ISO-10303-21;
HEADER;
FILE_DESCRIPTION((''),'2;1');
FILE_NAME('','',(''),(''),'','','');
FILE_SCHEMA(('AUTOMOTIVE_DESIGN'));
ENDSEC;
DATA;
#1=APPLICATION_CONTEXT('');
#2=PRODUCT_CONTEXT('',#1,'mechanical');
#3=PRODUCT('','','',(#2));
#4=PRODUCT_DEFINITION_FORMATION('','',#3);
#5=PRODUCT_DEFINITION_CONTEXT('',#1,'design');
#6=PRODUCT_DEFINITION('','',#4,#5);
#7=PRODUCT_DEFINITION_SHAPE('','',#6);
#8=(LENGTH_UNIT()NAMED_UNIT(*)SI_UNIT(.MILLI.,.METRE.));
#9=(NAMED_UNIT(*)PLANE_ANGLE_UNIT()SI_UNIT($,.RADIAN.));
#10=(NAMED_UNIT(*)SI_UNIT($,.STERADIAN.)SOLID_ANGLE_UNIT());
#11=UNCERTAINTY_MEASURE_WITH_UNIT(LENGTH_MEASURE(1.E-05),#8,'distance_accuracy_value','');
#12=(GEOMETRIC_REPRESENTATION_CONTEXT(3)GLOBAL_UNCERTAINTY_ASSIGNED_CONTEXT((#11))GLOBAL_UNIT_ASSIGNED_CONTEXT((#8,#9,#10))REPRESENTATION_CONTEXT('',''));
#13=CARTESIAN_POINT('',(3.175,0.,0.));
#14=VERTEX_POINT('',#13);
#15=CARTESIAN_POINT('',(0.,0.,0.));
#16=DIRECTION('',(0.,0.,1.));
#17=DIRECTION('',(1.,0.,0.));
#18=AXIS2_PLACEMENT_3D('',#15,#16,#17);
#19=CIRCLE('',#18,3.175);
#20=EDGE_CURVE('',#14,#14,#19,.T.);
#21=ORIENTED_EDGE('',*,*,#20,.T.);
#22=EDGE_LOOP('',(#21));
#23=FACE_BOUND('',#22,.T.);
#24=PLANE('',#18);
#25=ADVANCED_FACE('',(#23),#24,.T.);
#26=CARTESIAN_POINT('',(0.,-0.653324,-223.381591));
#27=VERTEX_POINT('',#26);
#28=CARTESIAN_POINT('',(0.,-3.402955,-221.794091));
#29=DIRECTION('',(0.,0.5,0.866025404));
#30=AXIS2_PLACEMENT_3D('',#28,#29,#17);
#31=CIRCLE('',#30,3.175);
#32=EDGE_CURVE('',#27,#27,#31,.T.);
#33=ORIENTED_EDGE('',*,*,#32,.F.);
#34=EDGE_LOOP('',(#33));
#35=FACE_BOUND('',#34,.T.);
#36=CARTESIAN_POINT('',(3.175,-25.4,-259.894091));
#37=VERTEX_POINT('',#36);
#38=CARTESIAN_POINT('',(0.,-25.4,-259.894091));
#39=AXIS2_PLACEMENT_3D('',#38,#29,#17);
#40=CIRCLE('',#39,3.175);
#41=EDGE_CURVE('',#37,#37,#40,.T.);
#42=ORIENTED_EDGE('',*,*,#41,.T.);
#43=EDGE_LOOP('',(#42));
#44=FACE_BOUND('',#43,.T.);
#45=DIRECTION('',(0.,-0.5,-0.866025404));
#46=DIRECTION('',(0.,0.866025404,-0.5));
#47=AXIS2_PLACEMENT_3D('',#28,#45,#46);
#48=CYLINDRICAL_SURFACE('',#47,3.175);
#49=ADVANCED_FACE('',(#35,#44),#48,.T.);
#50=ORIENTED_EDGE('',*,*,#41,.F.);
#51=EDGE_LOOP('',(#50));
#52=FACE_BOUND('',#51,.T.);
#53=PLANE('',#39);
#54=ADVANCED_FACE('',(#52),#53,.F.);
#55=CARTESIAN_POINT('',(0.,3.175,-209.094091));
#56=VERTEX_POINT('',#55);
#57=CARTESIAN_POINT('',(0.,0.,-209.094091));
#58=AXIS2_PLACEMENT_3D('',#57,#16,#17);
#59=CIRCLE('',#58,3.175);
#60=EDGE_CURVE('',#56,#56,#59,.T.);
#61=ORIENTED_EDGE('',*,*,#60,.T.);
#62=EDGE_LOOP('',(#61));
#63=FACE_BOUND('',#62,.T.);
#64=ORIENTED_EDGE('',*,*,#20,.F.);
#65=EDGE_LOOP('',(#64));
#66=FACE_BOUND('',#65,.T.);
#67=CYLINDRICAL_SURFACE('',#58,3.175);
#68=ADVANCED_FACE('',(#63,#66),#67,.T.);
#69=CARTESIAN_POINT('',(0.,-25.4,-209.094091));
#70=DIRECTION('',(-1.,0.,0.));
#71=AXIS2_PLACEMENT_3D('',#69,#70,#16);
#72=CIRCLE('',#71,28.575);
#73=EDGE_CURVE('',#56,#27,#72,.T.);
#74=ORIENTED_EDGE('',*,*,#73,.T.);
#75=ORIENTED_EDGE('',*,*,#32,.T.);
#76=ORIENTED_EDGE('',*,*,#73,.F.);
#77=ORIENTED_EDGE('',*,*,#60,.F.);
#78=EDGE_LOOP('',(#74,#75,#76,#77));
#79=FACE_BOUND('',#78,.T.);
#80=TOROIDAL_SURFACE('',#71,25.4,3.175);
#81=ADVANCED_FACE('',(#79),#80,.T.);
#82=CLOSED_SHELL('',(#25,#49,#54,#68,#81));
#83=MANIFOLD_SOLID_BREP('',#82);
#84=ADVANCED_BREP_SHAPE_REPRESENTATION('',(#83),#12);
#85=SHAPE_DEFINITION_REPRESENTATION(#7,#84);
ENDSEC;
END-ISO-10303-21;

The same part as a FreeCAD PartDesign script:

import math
import FreeCAD as App
import Part
import Sketcher
from FreeCAD import Vector
Q = App.Units.Quantity

doc = App.newDocument("Part")
body = doc.addObject("PartDesign::Body", "Body")

# Sketch on XY plane
sketch1 = doc.addObject("Sketcher::SketchObject", "Sketch")
body.addObject(sketch1)
sketch1.AttachmentSupport = (doc.XY_Plane, [""])
sketch1.MapMode = "FlatFace"
sketch1.addGeometry(Part.Circle(Vector(0, 0, 0), Vector(0, 0, 1), 3.175), False)
sketch1.addConstraint([
    Sketcher.Constraint("Coincident", 0, 3, -1, 1),
    Sketcher.Constraint("Diameter", 0, Q("0.25 in")),
])

# Sketch on YZ plane
sketch2 = doc.addObject("Sketcher::SketchObject", "Sketch001")
body.addObject(sketch2)
sketch2.AttachmentSupport = (doc.YZ_Plane, [""])
sketch2.MapMode = "FlatFace"
sketch2.addGeometry([
    Part.LineSegment(Vector(0, 0, 0), Vector(0, -209.094091, 0)),
    Part.ArcOfCircle(Part.Circle(Vector(-25.4, -209.094091, 0), Vector(0, 0, 1), 25.4), math.radians(-30), math.radians(0)),
    Part.LineSegment(Vector(-3.402955, -221.794091, 0), Vector(-25.4, -259.894091, 0)),
], False)
sketch2.addConstraint([
    Sketcher.Constraint("Tangent", 0, 2, 1, 2),
    Sketcher.Constraint("Tangent", 1, 1, 2, 1),
    Sketcher.Constraint("Vertical", 0),
    Sketcher.Constraint("Coincident", 0, 1, -1, 1),
    Sketcher.Constraint("Vertical", 1, 3, 2, 2),
    Sketcher.Constraint("Radius", 1, Q("1 in")),
    Sketcher.Constraint("Angle", 2, Q("-120 deg")),
    Sketcher.Constraint("DistanceY", 0, 2, 0, 1, 209.094091),
])
doc.recompute()

additivepipe = doc.addObject("PartDesign::AdditivePipe", "AdditivePipe")
body.addObject(additivepipe)
additivepipe.Profile = sketch1
additivepipe.Spine = (sketch2, ["Edge1", "Edge2", "Edge3"])

doc.recompute()
